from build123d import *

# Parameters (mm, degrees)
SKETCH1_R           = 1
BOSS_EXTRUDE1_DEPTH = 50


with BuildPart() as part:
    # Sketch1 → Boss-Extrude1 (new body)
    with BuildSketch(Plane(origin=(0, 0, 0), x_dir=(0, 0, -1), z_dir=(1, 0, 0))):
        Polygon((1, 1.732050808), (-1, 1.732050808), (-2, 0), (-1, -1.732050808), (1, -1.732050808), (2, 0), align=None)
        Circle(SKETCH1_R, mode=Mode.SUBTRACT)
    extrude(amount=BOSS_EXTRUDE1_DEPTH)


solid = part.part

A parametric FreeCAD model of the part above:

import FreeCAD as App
import Part
import Sketcher
from FreeCAD import Vector
Q = App.Units.Quantity

doc = App.newDocument("Part")
body = doc.addObject("PartDesign::Body", "Body")

sketch1 = body.newObject("Sketcher::SketchObject", "Sketch")
sketch1.AttachmentSupport = (doc.getObject("YZ_Plane"), [""])
sketch1.MapMode = "FlatFace"
sketch1.addGeometry([
    Part.LineSegment(Vector(1.7, -1, 0), Vector(1.7, 1, 0)),
    Part.LineSegment(Vector(1.7, 1, 0), Vector(0, 2, 0)),
    Part.LineSegment(Vector(0, 2, 0), Vector(-1.7, 1, 0)),
    Part.LineSegment(Vector(-1.7, 1, 0), Vector(-1.7, -1, 0)),
    Part.LineSegment(Vector(-1.7, -1, 0), Vector(0, -2, 0)),
    Part.LineSegment(Vector(0, -2, 0), Vector(1.7, -1, 0)),
    Part.Circle(Vector(0, 0, 0), Vector(0, 0, 1), 1),
], False)
sketch1.addConstraint([
    Sketcher.Constraint("Coincident", 0, 2, 1, 1),
    Sketcher.Constraint("Coincident", 1, 2, 2, 1),
    Sketcher.Constraint("Coincident", 2, 2, 3, 1),
    Sketcher.Constraint("Coincident", 3, 2, 4, 1),
    Sketcher.Constraint("Coincident", 4, 2, 5, 1),
    Sketcher.Constraint("Coincident", 5, 2, 0, 1),
    Sketcher.Constraint("Vertical", 0),
    Sketcher.Constraint("Vertical", 3),
    Sketcher.Constraint("Coincident", 6, 3, -1, 1),
    Sketcher.Constraint("Symmetric", 0, 2, 3, 2, -1, 1),
    Sketcher.Constraint("Symmetric", 1, 2, 4, 2, -1, 1),
    Sketcher.Constraint("PointOnObject", 1, 2, -2),
    Sketcher.Constraint("Parallel", 2, 5),
    Sketcher.Constraint("Horizontal", 0, 2, 2, 2),
    Sketcher.Constraint("Diameter", 6, Q("2 mm")),
    Sketcher.Constraint("DistanceY", 0, 1, 0, 2, Q("2 mm")),
    Sketcher.Constraint("Angle", 1, Q("150 deg")),
    Sketcher.Constraint("Distance", 1, Q("2 mm")),
])
pad1 = body.newObject("PartDesign::Pad", "Pad")
pad1.Profile = sketch1
pad1.Length = 50

doc.recompute()
